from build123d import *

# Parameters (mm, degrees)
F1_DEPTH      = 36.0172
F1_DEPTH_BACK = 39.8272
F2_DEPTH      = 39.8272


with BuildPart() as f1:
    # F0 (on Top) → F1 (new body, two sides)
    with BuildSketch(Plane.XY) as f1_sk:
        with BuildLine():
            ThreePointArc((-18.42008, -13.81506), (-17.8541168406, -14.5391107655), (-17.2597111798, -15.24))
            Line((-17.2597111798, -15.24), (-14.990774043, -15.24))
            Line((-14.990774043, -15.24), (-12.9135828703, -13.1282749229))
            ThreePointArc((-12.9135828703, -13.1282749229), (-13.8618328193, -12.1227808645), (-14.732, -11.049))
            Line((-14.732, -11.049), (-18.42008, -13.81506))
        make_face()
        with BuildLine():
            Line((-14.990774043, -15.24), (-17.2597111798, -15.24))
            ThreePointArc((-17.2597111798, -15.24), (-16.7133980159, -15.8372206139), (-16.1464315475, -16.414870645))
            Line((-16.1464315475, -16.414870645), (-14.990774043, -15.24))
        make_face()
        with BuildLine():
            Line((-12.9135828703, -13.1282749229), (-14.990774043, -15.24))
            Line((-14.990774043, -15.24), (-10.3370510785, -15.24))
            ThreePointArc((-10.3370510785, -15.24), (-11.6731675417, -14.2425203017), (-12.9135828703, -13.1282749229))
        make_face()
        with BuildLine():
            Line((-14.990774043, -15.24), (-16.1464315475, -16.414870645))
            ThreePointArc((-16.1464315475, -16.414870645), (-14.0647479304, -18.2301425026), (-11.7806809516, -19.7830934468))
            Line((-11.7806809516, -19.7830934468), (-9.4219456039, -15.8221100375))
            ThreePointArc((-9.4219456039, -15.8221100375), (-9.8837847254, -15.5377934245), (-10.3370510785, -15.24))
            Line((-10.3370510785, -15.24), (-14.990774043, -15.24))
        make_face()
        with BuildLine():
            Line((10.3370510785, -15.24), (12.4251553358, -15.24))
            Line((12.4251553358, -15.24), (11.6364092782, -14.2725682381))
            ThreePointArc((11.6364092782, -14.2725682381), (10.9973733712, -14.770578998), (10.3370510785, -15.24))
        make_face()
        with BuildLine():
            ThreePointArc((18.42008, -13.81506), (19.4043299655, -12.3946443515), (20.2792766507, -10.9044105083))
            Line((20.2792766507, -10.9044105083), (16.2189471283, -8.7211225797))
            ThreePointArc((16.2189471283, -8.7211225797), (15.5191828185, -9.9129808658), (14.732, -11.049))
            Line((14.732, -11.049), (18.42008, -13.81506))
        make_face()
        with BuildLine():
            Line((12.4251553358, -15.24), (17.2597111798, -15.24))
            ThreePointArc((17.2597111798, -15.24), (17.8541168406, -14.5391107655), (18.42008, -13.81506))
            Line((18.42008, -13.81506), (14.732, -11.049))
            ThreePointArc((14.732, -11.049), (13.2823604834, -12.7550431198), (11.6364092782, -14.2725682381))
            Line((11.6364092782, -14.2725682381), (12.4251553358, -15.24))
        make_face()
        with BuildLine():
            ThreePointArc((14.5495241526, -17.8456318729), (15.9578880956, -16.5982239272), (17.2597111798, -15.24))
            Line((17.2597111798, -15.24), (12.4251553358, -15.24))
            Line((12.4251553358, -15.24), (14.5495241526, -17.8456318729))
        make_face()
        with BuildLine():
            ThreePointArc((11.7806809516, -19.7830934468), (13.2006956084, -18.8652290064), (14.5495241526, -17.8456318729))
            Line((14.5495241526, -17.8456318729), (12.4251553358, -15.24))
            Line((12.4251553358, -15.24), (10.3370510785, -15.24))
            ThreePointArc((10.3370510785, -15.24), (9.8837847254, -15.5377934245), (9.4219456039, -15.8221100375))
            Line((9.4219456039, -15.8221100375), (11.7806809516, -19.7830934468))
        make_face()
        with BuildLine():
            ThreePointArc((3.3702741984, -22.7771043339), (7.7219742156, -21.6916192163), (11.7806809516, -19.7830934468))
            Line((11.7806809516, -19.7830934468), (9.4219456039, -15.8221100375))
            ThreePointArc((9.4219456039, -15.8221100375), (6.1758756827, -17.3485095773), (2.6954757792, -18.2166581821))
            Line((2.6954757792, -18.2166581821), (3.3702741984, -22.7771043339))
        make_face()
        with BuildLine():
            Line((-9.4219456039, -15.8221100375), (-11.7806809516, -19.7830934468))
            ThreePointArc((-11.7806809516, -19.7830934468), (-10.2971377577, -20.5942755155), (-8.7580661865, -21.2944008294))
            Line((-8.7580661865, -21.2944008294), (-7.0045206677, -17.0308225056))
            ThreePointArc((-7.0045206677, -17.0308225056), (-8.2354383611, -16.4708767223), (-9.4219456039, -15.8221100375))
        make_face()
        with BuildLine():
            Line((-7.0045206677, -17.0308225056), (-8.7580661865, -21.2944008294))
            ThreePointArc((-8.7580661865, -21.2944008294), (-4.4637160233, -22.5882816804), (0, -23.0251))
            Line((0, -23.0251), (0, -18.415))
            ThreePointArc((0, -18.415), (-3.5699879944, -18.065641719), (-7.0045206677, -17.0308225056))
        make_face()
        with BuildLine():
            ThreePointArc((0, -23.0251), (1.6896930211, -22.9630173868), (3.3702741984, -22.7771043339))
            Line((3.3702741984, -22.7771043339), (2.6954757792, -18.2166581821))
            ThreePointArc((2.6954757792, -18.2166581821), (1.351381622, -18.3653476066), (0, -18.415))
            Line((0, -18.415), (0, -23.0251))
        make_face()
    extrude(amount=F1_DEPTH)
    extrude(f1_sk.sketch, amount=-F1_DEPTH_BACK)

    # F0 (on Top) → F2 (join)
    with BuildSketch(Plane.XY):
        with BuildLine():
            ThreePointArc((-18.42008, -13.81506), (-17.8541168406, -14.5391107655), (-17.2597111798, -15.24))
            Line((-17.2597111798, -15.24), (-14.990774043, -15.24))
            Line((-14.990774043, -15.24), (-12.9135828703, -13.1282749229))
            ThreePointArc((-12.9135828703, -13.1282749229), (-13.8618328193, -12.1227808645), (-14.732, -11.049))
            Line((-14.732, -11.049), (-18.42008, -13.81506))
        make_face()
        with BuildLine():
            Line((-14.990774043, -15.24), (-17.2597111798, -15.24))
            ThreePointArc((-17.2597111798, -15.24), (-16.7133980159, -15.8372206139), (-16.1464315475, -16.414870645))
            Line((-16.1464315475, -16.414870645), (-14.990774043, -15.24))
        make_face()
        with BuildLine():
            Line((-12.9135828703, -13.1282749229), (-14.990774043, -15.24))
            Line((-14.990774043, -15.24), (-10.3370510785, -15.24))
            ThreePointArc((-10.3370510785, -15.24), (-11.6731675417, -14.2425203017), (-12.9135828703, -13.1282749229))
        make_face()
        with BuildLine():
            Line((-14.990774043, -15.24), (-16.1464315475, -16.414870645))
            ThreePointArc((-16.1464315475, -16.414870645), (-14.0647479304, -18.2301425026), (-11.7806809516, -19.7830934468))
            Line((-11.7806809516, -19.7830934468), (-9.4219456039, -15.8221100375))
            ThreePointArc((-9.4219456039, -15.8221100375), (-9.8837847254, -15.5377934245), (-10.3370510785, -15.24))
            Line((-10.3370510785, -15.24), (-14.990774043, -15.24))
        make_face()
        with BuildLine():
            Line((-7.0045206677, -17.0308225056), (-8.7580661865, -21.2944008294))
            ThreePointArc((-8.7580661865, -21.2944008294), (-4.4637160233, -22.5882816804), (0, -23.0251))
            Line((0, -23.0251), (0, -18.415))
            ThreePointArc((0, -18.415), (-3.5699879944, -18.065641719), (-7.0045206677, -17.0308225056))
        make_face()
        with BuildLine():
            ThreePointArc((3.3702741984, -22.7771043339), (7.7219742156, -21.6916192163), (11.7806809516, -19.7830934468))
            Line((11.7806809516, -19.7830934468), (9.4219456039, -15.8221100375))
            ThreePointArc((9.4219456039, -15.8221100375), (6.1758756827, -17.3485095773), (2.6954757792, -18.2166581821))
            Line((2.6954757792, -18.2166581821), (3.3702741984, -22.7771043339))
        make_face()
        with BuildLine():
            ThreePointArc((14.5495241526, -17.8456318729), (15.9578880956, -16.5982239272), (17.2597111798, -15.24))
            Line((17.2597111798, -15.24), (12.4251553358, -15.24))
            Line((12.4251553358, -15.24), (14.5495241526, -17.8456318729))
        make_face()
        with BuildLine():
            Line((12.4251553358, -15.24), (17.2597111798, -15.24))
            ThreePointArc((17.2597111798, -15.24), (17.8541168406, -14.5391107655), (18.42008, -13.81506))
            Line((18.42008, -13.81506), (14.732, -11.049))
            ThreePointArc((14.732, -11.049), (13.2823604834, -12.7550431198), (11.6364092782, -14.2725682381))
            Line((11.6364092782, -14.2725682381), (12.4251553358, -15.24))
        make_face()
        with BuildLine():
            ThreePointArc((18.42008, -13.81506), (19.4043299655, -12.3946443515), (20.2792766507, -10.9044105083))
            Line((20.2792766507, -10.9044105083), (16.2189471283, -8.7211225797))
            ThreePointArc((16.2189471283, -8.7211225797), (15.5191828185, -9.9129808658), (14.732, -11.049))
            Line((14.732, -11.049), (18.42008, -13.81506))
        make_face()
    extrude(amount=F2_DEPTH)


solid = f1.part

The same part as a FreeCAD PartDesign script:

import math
import FreeCAD as App
import Part
import Sketcher

V = App.Vector
Q = App.Units.Quantity

doc = App.newDocument("Part")
params = doc.addObject("Spreadsheet::Sheet", "Params")
for row, (alias, value) in enumerate([
    ("sketch1_radius", "0.725 in"),
    ("pad1_length", "1.418 in"),
    ("pad1_length2", "1.568 in"),
    ("sketch2_radius", "0.725 in"),
    ("pad2_length", "1.568 in"),
], start=1):
    params.set(f"A{row}", alias)
    params.set(f"B{row}", "=" + value)
    params.setAlias(f"B{row}", alias)

body = doc.addObject("PartDesign::Body", "Body")

# Sketch on XY plane
sketch1 = doc.addObject("Sketcher::SketchObject", "Sketch")
body.addObject(sketch1)
sketch1.AttachmentSupport = (doc.XY_Plane, [""])
sketch1.MapMode = "FlatFace"
sketch1.addGeometry([
    Part.ArcOfCircle(Part.Circle(V(0, 0, 0), V(0, 0, 1), 23), math.radians(-143.13), math.radians(-138.56)),  # 0
    Part.ArcOfCircle(Part.Circle(V(0, 0, 0), V(0, 0, 1), 23), math.radians(-138.56), math.radians(-134.53)),  # 1
    Part.ArcOfCircle(Part.Circle(V(0, 0, 0), V(0, 0, 1), 23), math.radians(-134.53), math.radians(-120.77)),  # 2
    Part.ArcOfCircle(Part.Circle(V(0, 0, 0), V(0, 0, 1), 23), math.radians(-120.77), math.radians(-112.36)),  # 3
    Part.ArcOfCircle(Part.Circle(V(0, 0, 0), V(0, 0, 1), 23), math.radians(-112), math.radians(-90)),  # 4
    Part.ArcOfCircle(Part.Circle(V(0, 0, 0), V(0, 0, 1), 23), math.radians(-90), math.radians(-81.58)),  # 5
    Part.ArcOfCircle(Part.Circle(V(0, 0, 0), V(0, 0, 1), 23), math.radians(-82), math.radians(-59)),  # 6
    Part.ArcOfCircle(Part.Circle(V(0, 0, 0), V(0, 0, 1), 23), math.radians(-59.23), math.radians(-50.81)),  # 7
    Part.ArcOfCircle(Part.Circle(V(0, 0, 0), V(0, 0, 1), 23), math.radians(-50.81), math.radians(-41.44)),  # 8
    Part.ArcOfCircle(Part.Circle(V(0, 0, 0), V(0, 0, 1), 23), math.radians(-41.44), math.radians(-36.87)),  # 9
    Part.ArcOfCircle(Part.Circle(V(0, 0, 0), V(0, 0, 1), 23), math.radians(-36.87), math.radians(-28.27)),  # 10
    Part.LineSegment(V(20.3, -10.9, 0), V(16.2, -8.7, 0)),  # 11
    Part.ArcOfCircle(Part.Circle(V(0, 0, 0), V(0, 0, 1), 18.4), math.radians(-36.87), math.radians(-28.27)),  # 12
    Part.ArcOfCircle(Part.Circle(V(0, 0, 0), V(0, 0, 1), 18.4), math.radians(-50.81), math.radians(-36.87)),  # 13
    Part.ArcOfCircle(Part.Circle(V(0, 0, 0), V(0, 0, 1), 18.4), math.radians(-55.85), math.radians(-50.81)),  # 14
    Part.ArcOfCircle(Part.Circle(V(0, 0, 0), V(0, 0, 1), 18.4), math.radians(-59.23), math.radians(-55.85)),  # 15
    Part.ArcOfCircle(Part.Circle(V(0, 0, 0), V(0, 0, 1), 18.4), math.radians(-82), math.radians(-59)),  # 16
    Part.ArcOfCircle(Part.Circle(V(0, 0, 0), V(0, 0, 1), 18.4), math.radians(-90), math.radians(-81.58)),  # 17
    Part.ArcOfCircle(Part.Circle(V(0, 0, 0), V(0, 0, 1), 18.4), math.radians(-112), math.radians(-90)),  # 18
    Part.ArcOfCircle(Part.Circle(V(0, 0, 0), V(0, 0, 1), 18.4), math.radians(-120.77), math.radians(-112.36)),  # 19
    Part.ArcOfCircle(Part.Circle(V(0, 0, 0), V(0, 0, 1), 18.4), math.radians(-124.15), math.radians(-120.77)),  # 20
    Part.ArcOfCircle(Part.Circle(V(0, 0, 0), V(0, 0, 1), 18.4), math.radians(-134.53), math.radians(-124.15)),  # 21
    Part.ArcOfCircle(Part.Circle(V(0, 0, 0), V(0, 0, 1), 18.4), math.radians(-143.13), math.radians(-134.53)),  # 22
    Part.LineSegment(V(-14.7, -11, 0), V(-18.4, -13.8, 0)),  # 23
], False)
sketch1.addConstraint([
    Sketcher.Constraint("Tangent", 0, 2, 1, 1),
    Sketcher.Constraint("Tangent", 1, 2, 2, 1),
    Sketcher.Constraint("Tangent", 2, 2, 3, 1),
    Sketcher.Constraint("Tangent", 3, 2, 4, 1),
    Sketcher.Constraint("Tangent", 4, 2, 5, 1),
    Sketcher.Constraint("Tangent", 5, 2, 6, 1),
    Sketcher.Constraint("Tangent", 6, 2, 7, 1),
    Sketcher.Constraint("Tangent", 7, 2, 8, 1),
    Sketcher.Constraint("Tangent", 8, 2, 9, 1),
    Sketcher.Constraint("Tangent", 9, 2, 10, 1),
    Sketcher.Constraint("Coincident", 10, 2, 11, 1),
    Sketcher.Constraint("Coincident", 11, 2, 12, 2),
    Sketcher.Constraint("Tangent", 12, 1, 13, 2),
    Sketcher.Constraint("Tangent", 13, 1, 14, 2),
    Sketcher.Constraint("Tangent", 14, 1, 15, 2),
    Sketcher.Constraint("Tangent", 15, 1, 16, 2),
    Sketcher.Constraint("Tangent", 16, 1, 17, 2),
    Sketcher.Constraint("Tangent", 17, 1, 18, 2),
    Sketcher.Constraint("Tangent", 18, 1, 19, 2),
    Sketcher.Constraint("Tangent", 19, 1, 20, 2),
    Sketcher.Constraint("Tangent", 20, 1, 21, 2),
    Sketcher.Constraint("Tangent", 21, 1, 22, 2),
    Sketcher.Constraint("Coincident", 22, 1, 23, 1),
    Sketcher.Constraint("Coincident", 23, 2, 0, 1),
    Sketcher.Constraint("Coincident", 0, 3, -1, 1),
    Sketcher.Constraint("Coincident", 2, 3, -1, 1),
    Sketcher.Constraint("Coincident", 4, 3, -1, 1),
    Sketcher.Constraint("Coincident", 6, 3, -1, 1),
    Sketcher.Constraint("Coincident", 8, 3, -1, 1),
    Sketcher.Constraint("Coincident", 10, 3, -1, 1),
    Sketcher.Constraint("Coincident", 12, 3, -1, 1),
    Sketcher.Constraint("Coincident", 14, 3, -1, 1),
    Sketcher.Constraint("Coincident", 16, 3, -1, 1),
    Sketcher.Constraint("Coincident", 18, 3, -1, 1),
    Sketcher.Constraint("Coincident", 20, 3, -1, 1),
    Sketcher.Constraint("Coincident", 22, 3, -1, 1),
    Sketcher.Constraint("PointOnObject", 4, 2, -2),
    Sketcher.Constraint("PointOnObject", 17, 1, -2),
    Sketcher.Constraint("Horizontal", 2, 2, 6, 2),
    Sketcher.Constraint("Horizontal", 0, 2, 8, 2),
    Sketcher.Constraint("Horizontal", 8, 2, 14, 1),
    Sketcher.Constraint("Horizontal", 15, 1, 19, 1),
    Sketcher.Constraint("Horizontal", 14, 1, 20, 1),
    Sketcher.Constraint("Horizontal", 12, 1, 22, 1),
    Sketcher.Constraint("Horizontal", 9, 2, 23, 2),
    Sketcher.Constraint("Radius", 12, Q("0.725 in")),
    Sketcher.Constraint("DistanceY", 0, 2, -1, 1, Q("0.6 in")),
    Sketcher.Constraint("Radius", 0, Q("0.9065 in")),
    Sketcher.Constraint("DistanceX", -1, 1, 12, 1, Q("0.58 in")),
    Sketcher.Constraint("DistanceX", -1, 1, 9, 2, Q("0.7252 in")),
    Sketcher.Constraint("DistanceY", 3, 2, -1, 1, Q("21.294401 mm")),
    Sketcher.Constraint("DistanceX", 6, 2, 9, 2, Q("6.639399 mm")),
    Sketcher.Constraint("DistanceX", 13, 1, 8, 2, Q("5.623302 mm")),
    Sketcher.Constraint("DistanceX", 16, 1, 5, 2, Q("0.674798 mm")),
    Sketcher.Constraint("DistanceX", 21, 1, 2, 2, Q("1.132902 mm")),
    Sketcher.Constraint("DistanceX", 1, 2, -1, 1, Q("16.146432 mm")),
    Sketcher.Constraint("DistanceY", 7, 2, -1, 1, Q("17.845632 mm")),
    Sketcher.Constraint("DistanceY", 10, 2, -1, 1, Q("10.904411 mm")),
    Sketcher.Constraint("DistanceY", 15, 1, -1, 1, Q("15.82211 mm")),
    Sketcher.Constraint("DistanceY", 16, 1, -1, 1, Q("18.216658 mm")),
    Sketcher.Constraint("DistanceX", 18, 1, -1, 1, Q("7.004521 mm")),
    Sketcher.Constraint("DistanceX", 11, 2, 10, 2, Q("4.06033 mm")),
])
sketch1.setExpression("Constraints[45]", "Params.sketch1_radius")
pad1 = doc.addObject("PartDesign::Pad", "Pad")
body.addObject(pad1)
pad1.Profile = sketch1
pad1.Type = "TwoLengths"
pad1.setExpression("Length", "Params.pad1_length")
pad1.setExpression("Length2", "Params.pad1_length2")

# Sketch on XY plane
sketch2 = doc.addObject("Sketcher::SketchObject", "Sketch001")
body.addObject(sketch2)
sketch2.AttachmentSupport = (doc.XY_Plane, [""])
sketch2.MapMode = "FlatFace"
sketch2.addGeometry([
    Part.ArcOfCircle(Part.Circle(V(0, 0, 0), V(0, 0, 1), 23), math.radians(-143.13), math.radians(-138.56)),  # 0
    Part.ArcOfCircle(Part.Circle(V(0, 0, 0), V(0, 0, 1), 23), math.radians(-138.56), math.radians(-134.53)),  # 1
    Part.ArcOfCircle(Part.Circle(V(0, 0, 0), V(0, 0, 1), 23), math.radians(-134.53), math.radians(-120.77)),  # 2
    Part.LineSegment(V(-11.8, -19.8, 0), V(-9.4, -15.8, 0)),  # 3
    Part.ArcOfCircle(Part.Circle(V(0, 0, 0), V(0, 0, 1), 18.4), math.radians(-124.15), math.radians(-120.77)),  # 4
    Part.ArcOfCircle(Part.Circle(V(0, 0, 0), V(0, 0, 1), 18.4), math.radians(-134.53), math.radians(-124.15)),  # 5
    Part.ArcOfCircle(Part.Circle(V(0, 0, 0), V(0, 0, 1), 18.4), math.radians(-143.13), math.radians(-134.53)),  # 6
    Part.LineSegment(V(-14.7, -11, 0), V(-18.4, -13.8, 0)),  # 7
    Part.LineSegment(V(-7, -17, 0), V(-8.8, -21.3, 0)),  # 8
    Part.ArcOfCircle(Part.Circle(V(0, 0, 0), V(0, 0, 1), 23), math.radians(-112), math.radians(-90)),  # 9
    Part.LineSegment(V(0, -23, 0), V(0, -18.4, 0)),  # 10
    Part.ArcOfCircle(Part.Circle(V(0, 0, 0), V(0, 0, 1), 18.4), math.radians(-112), math.radians(-90)),  # 11
    Part.ArcOfCircle(Part.Circle(V(0, 0, 0), V(0, 0, 1), 23), math.radians(-82), math.radians(-59)),  # 12
    Part.LineSegment(V(11.8, -19.8, 0), V(9.4, -15.8, 0)),  # 13
    Part.ArcOfCircle(Part.Circle(V(0, 0, 0), V(0, 0, 1), 18.4), math.radians(-82), math.radians(-59)),  # 14
    Part.LineSegment(V(2.7, -18.2, 0), V(3.4, -22.8, 0)),  # 15
    Part.ArcOfCircle(Part.Circle(V(0, 0, 0), V(0, 0, 1), 23), math.radians(-50.81), math.radians(-41.44)),  # 16
    Part.ArcOfCircle(Part.Circle(V(0, 0, 0), V(0, 0, 1), 23), math.radians(-41.44), math.radians(-36.87)),  # 17
    Part.ArcOfCircle(Part.Circle(V(0, 0, 0), V(0, 0, 1), 23), math.radians(-36.87), math.radians(-28.27)),  # 18
    Part.LineSegment(V(20.3, -10.9, 0), V(16.2, -8.7, 0)),  # 19
    Part.ArcOfCircle(Part.Circle(V(0, 0, 0), V(0, 0, 1), 18.4), math.radians(-36.87), math.radians(-28.27)),  # 20
    Part.ArcOfCircle(Part.Circle(V(0, 0, 0), V(0, 0, 1), 18.4), math.radians(-50.81), math.radians(-36.87)),  # 21
    Part.LineSegment(V(11.6, -14.3, 0), V(12.4, -15.2, 0)),  # 22
    Part.LineSegment(V(12.4, -15.2, 0), V(14.5, -17.8, 0)),  # 23
], False)
sketch2.addConstraint([
    Sketcher.Constraint("Tangent", 0, 2, 1, 1),
    Sketcher.Constraint("Tangent", 1, 2, 2, 1),
    Sketcher.Constraint("Coincident", 2, 2, 3, 1),
    Sketcher.Constraint("Coincident", 3, 2, 4, 2),
    Sketcher.Constraint("Tangent", 4, 1, 5, 2),
    Sketcher.Constraint("Tangent", 5, 1, 6, 2),
    Sketcher.Constraint("Coincident", 6, 1, 7, 1),
    Sketcher.Constraint("Coincident", 7, 2, 0, 1),
    Sketcher.Constraint("Coincident", 8, 2, 9, 1),
    Sketcher.Constraint("Coincident", 9, 2, 10, 1),
    Sketcher.Constraint("Coincident", 10, 2, 11, 2),
    Sketcher.Constraint("Coincident", 11, 1, 8, 1),
    Sketcher.Constraint("Coincident", 12, 2, 13, 1),
    Sketcher.Constraint("Coincident", 13, 2, 14, 2),
    Sketcher.Constraint("Coincident", 14, 1, 15, 1),
    Sketcher.Constraint("Coincident", 15, 2, 12, 1),
    Sketcher.Constraint("Tangent", 16, 2, 17, 1),
    Sketcher.Constraint("Tangent", 17, 2, 18, 1),
    Sketcher.Constraint("Coincident", 18, 2, 19, 1),
    Sketcher.Constraint("Coincident", 19, 2, 20, 2),
    Sketcher.Constraint("Tangent", 20, 1, 21, 2),
    Sketcher.Constraint("Coincident", 21, 1, 22, 1),
    Sketcher.Constraint("Coincident", 22, 2, 23, 1),
    Sketcher.Constraint("Coincident", 23, 2, 16, 1),
    Sketcher.Constraint("Vertical", 10),
    Sketcher.Constraint("Coincident", 0, 3, -1, 1),
    Sketcher.Constraint("Coincident", 2, 3, -1, 1),
    Sketcher.Constraint("Coincident", 4, 3, -1, 1),
    Sketcher.Constraint("Coincident", 6, 3, -1, 1),
    Sketcher.Constraint("Coincident", 9, 3, -1, 1),
    Sketcher.Constraint("Coincident", 11, 3, -1, 1),
    Sketcher.Constraint("Coincident", 12, 3, -1, 1),
    Sketcher.Constraint("Coincident", 14, 3, -1, 1),
    Sketcher.Constraint("Coincident", 16, 3, -1, 1),
    Sketcher.Constraint("Coincident", 18, 3, -1, 1),
    Sketcher.Constraint("Coincident", 20, 3, -1, 1),
    Sketcher.Constraint("Equal", 2, 9),
    Sketcher.Constraint("Equal", 6, 11),
    Sketcher.Constraint("Equal", 9, 12),
    Sketcher.Constraint("Equal", 11, 14),
    Sketcher.Constraint("Equal", 12, 16),
    Sketcher.Constraint("Equal", 14, 20),
    Sketcher.Constraint("Equal", 20, 21),
    Sketcher.Constraint("PointOnObject", 9, 2, -2),
    Sketcher.Constraint("Parallel", 22, 23),
    Sketcher.Constraint("Horizontal", 0, 2, 4, 1),
    Sketcher.Constraint("Horizontal", 2, 2, 12, 2),
    Sketcher.Constraint("Horizontal", 3, 2, 13, 2),
    Sketcher.Constraint("Horizontal", 4, 1, 16, 2),
    Sketcher.Constraint("Horizontal", 7, 2, 17, 2),
    Sketcher.Constraint("Horizontal", 6, 1, 20, 1),
    Sketcher.Constraint("Horizontal", 16, 2, 22, 2),
    Sketcher.Constraint("Radius", 4, Q("0.725 in")),
    Sketcher.Constraint("DistanceY", 0, 2, -1, 1, Q("0.6 in")),
    Sketcher.Constraint("Radius", 0, Q("0.9065 in")),
    Sketcher.Constraint("DistanceX", 6, 1, -1, 1, Q("0.58 in")),
    Sketcher.Constraint("DistanceX", 7, 2, -1, 1, Q("0.7252 in")),
    Sketcher.Constraint("DistanceY", 8, 2, -1, 1, Q("21.294401 mm")),
    Sketcher.Constraint("DistanceX", 5, 1, 2, 2, Q("1.132902 mm")),
    Sketcher.Constraint("DistanceX", 11, 1, 12, 2, Q("18.785202 mm")),
    Sketcher.Constraint("DistanceX", 14, 1, 15, 2, Q("0.674798 mm")),
    Sketcher.Constraint("DistanceX", 12, 2, 17, 2, Q("6.639399 mm")),
    Sketcher.Constraint("DistanceY", 14, 1, 17, 2, Q("4.401598 mm")),
    Sketcher.Constraint("DistanceY", 13, 2, 18, 2, Q("4.9177 mm")),
    Sketcher.Constraint("DistanceX", 14, 1, 18, 2, Q("17.583801 mm")),
    Sketcher.Constraint("DistanceX", 13, 2, 19, 2, Q("6.797002 mm")),
    Sketcher.Constraint("DistanceX", 21, 1, 16, 2, Q("5.623302 mm")),
    Sketcher.Constraint("DistanceX", 1, 2, -1, 1, Q("16.146432 mm")),
    Sketcher.Constraint("DistanceY", 23, 2, -1, 1, Q("17.845632 mm")),
])
sketch2.setExpression("Constraints[52]", "Params.sketch2_radius")
pad2 = doc.addObject("PartDesign::Pad", "Pad001")
body.addObject(pad2)
pad2.Profile = sketch2
pad2.setExpression("Length", "Params.pad2_length")

doc.recompute()
